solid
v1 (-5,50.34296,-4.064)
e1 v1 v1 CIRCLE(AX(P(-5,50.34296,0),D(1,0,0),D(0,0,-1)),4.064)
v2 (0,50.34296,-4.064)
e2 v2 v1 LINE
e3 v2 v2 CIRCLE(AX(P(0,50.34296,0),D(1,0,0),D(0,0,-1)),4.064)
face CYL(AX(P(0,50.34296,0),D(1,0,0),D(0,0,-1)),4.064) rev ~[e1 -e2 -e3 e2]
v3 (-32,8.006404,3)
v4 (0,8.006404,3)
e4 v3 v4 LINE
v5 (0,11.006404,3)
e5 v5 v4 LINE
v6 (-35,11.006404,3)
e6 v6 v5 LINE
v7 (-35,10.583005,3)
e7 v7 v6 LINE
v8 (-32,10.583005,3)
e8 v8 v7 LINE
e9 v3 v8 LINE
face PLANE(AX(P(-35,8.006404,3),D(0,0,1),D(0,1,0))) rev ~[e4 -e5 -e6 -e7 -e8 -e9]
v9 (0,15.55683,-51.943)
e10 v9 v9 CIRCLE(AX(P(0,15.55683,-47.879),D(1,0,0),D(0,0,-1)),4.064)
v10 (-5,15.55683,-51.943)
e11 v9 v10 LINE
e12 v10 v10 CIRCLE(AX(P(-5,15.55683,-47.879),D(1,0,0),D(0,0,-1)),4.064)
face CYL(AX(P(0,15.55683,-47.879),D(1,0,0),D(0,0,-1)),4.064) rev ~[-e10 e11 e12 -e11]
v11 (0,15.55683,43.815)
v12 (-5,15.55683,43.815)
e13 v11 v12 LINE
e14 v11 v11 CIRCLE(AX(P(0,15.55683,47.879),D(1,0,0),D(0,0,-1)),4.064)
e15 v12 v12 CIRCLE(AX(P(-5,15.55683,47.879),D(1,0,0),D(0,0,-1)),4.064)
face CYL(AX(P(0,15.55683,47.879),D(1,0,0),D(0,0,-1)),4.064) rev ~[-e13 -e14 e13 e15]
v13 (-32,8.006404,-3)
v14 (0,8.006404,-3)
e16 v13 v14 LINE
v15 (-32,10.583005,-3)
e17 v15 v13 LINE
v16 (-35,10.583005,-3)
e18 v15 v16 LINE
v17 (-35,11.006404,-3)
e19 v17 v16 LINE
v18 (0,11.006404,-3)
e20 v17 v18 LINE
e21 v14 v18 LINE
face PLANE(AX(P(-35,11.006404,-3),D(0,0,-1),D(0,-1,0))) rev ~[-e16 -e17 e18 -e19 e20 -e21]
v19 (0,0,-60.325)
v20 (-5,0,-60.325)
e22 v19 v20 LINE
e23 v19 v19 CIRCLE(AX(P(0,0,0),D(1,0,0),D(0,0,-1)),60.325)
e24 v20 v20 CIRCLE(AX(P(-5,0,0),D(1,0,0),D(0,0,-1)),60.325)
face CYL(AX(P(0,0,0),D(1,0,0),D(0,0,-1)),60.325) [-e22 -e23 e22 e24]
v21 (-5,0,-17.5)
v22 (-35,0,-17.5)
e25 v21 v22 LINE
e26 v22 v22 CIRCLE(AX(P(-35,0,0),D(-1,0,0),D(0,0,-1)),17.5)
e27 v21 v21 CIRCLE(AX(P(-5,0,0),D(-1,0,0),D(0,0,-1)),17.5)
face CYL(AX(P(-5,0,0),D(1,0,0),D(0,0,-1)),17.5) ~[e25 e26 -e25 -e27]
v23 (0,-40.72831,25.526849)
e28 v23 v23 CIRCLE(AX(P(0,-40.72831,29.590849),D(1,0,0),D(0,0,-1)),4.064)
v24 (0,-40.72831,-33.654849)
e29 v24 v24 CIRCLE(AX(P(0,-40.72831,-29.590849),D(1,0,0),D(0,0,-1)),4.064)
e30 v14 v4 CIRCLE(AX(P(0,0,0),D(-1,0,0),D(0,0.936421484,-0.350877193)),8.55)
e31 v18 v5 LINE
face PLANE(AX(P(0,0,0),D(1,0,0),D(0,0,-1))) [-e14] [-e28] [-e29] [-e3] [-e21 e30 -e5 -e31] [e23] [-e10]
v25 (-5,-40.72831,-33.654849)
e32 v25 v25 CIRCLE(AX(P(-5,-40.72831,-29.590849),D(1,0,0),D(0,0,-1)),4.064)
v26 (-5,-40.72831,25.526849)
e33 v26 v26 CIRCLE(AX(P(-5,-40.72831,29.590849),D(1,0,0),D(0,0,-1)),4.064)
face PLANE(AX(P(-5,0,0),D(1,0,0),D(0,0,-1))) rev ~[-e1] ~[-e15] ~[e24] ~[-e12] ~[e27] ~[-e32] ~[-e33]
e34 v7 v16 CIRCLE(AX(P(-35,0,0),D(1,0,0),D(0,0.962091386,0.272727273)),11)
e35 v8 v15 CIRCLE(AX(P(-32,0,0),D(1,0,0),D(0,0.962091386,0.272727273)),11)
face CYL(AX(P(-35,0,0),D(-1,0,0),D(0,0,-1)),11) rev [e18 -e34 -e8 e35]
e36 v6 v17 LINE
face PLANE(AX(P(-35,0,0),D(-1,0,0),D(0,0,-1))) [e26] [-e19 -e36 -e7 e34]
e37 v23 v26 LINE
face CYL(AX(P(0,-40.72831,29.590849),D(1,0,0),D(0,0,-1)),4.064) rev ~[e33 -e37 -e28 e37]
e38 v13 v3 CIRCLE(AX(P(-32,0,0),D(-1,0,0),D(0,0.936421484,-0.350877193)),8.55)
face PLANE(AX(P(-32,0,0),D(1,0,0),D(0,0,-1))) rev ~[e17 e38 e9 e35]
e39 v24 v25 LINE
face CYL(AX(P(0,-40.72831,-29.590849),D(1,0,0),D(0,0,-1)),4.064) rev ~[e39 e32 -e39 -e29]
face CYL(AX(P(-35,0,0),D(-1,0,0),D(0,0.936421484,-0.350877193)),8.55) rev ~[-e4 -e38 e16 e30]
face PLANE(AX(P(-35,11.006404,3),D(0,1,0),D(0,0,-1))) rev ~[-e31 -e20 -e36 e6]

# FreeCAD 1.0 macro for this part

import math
import FreeCAD as App
import Part
import Sketcher

V = App.Vector

doc = App.newDocument("Part")
body = doc.addObject("PartDesign::Body", "Body")

# Sketch on YZ plane
sketch1 = body.newObject("Sketcher::SketchObject", "Sketch")
sketch1.AttachmentSupport = (doc.getObject("YZ_Plane"), [""])
sketch1.MapMode = "FlatFace"
sketch1.addGeometry(Part.Circle(V(0, 0, 0), V(0, 0, 1), 60), False)
sketch1.addConstraint(Sketcher.Constraint("Coincident", 0, 3, -1, 1))
sketch1.addConstraint(Sketcher.Constraint("Diameter", 0, 120.65))
pad1 = body.newObject("PartDesign::Pad", "Pad")
pad1.Profile = sketch1
pad1.Length = 5
pad1.Reversed = True

# Sketch on YZ plane
sketch2 = body.newObject("Sketcher::SketchObject", "Sketch001")
sketch2.AttachmentSupport = (doc.getObject("YZ_Plane"), [""])
sketch2.MapMode = "FlatFace"
sketch2.addGeometry(Part.Circle(V(50.3, 0, 0), V(0, 0, 1), 4.1), False)
sketch2.addGeometry(Part.Circle(V(15.6, -47.9, 0), V(0, 0, 1), 4.1), False)
sketch2.addGeometry(Part.Circle(V(-40.7, -29.6, 0), V(0, 0, 1), 4.1), False)
sketch2.addGeometry(Part.Circle(V(-40.7, 29.6, 0), V(0, 0, 1), 4.1), False)
sketch2.addGeometry(Part.Circle(V(15.6, 47.9, 0), V(0, 0, 1), 4.1), False)
sketch2.addConstraint(Sketcher.Constraint("Equal", 0, 1))
sketch2.addConstraint(Sketcher.Constraint("Equal", 1, 2))
sketch2.addConstraint(Sketcher.Constraint("Equal", 2, 3))
sketch2.addConstraint(Sketcher.Constraint("Equal", 3, 4))
sketch2.addConstraint(Sketcher.Constraint("Symmetric", 2, 3, 3, 3, -1))
sketch2.addConstraint(Sketcher.Constraint("Symmetric", 1, 3, 4, 3, -1))
sketch2.addConstraint(Sketcher.Constraint("PointOnObject", 0, 3, -1))
sketch2.addConstraint(Sketcher.Constraint("Diameter", 0, 8.128))
sketch2.addConstraint(Sketcher.Constraint("DistanceY", 1, 3, -1, 1, 47.879))
sketch2.addConstraint(Sketcher.Constraint("DistanceY", 2, 3, 3, 3, 59.181699))
sketch2.addConstraint(Sketcher.Constraint("DistanceX", -1, 1, 0, 3, 50.34296))
sketch2.addConstraint(Sketcher.Constraint("DistanceX", -1, 1, 1, 3, 15.55683))
sketch2.addConstraint(Sketcher.Constraint("DistanceX", 2, 3, -1, 1, 40.72831))
pocket1 = body.newObject("PartDesign::Pocket", "Pocket")
pocket1.Profile = sketch2
pocket1.Type = "ThroughAll"

# Sketch on YZ plane
sketch3 = body.newObject("Sketcher::SketchObject", "Sketch002")
sketch3.AttachmentSupport = (doc.getObject("YZ_Plane"), [""])
sketch3.MapMode = "FlatFace"
sketch3.AttachmentOffset = App.Placement(V(0, 0, -5), App.Rotation())
sketch3.addGeometry(Part.Circle(V(0, 0, 0), V(0, 0, 1), 18), False)
sketch3.addConstraint(Sketcher.Constraint("Coincident", 0, 3, -1, 1))
sketch3.addConstraint(Sketcher.Constraint("Diameter", 0, 35.0))
pad2 = body.newObject("PartDesign::Pad", "Pad001")
pad2.Profile = sketch3
pad2.Length = 30
pad2.Reversed = True

# Sketch on YZ plane
sketch4 = body.newObject("Sketcher::SketchObject", "Sketch003")
sketch4.AttachmentSupport = (doc.getObject("YZ_Plane"), [""])
sketch4.MapMode = "FlatFace"
sketch4.AttachmentOffset = App.Placement(V(0, 0, -35), App.Rotation())
sketch4.addGeometry(Part.LineSegment(V(11, -3, 0), V(8, -3, 0)), False)
sketch4.addGeometry(Part.ArcOfCircle(Part.Circle(V(0, 0, 0), V(0, 0, 1), 8.6), math.radians(21), math.radians(339)), False)
sketch4.addGeometry(Part.LineSegment(V(8, 3, 0), V(11, 3, 0)), False)
sketch4.addGeometry(Part.LineSegment(V(11, 3, 0), V(11, -3, 0)), False)
sketch4.addConstraint(Sketcher.Constraint("Coincident", 0, 2, 1, 2))
sketch4.addConstraint(Sketcher.Constraint("Coincident", 1, 1, 2, 1))
sketch4.addConstraint(Sketcher.Constraint("Coincident", 2, 2, 3, 1))
sketch4.addConstraint(Sketcher.Constraint("Coincident", 3, 2, 0, 1))
sketch4.addConstraint(Sketcher.Constraint("Horizontal", 0))
sketch4.addConstraint(Sketcher.Constraint("Horizontal", 2))
sketch4.addConstraint(Sketcher.Constraint("Vertical", 3))
sketch4.addConstraint(Sketcher.Constraint("Coincident", 1, 3, -1, 1))
sketch4.addConstraint(Sketcher.Constraint("Vertical", 0, 2, 1, 1))
sketch4.addConstraint(Sketcher.Constraint("DistanceX", 0, 2, 0, 1, 3.0))
sketch4.addConstraint(Sketcher.Constraint("DistanceY", 3, 2, 3, 1, 6.0))
sketch4.addConstraint(Sketcher.Constraint("Radius", 1, 8.55))
pocket2 = body.newObject("PartDesign::Pocket", "Pocket001")
pocket2.Profile = sketch4
pocket2.Type = "ThroughAll"
pocket2.Reversed = True

# Sketch on YZ plane
sketch5 = body.newObject("Sketcher::SketchObject", "Sketch004")
sketch5.AttachmentSupport = (doc.getObject("YZ_Plane"), [""])
sketch5.MapMode = "FlatFace"
sketch5.AttachmentOffset = App.Placement(V(0, 0, -35), App.Rotation())
sketch5.addGeometry(Part.Circle(V(0, 0, 0), V(0, 0, 1), 11), False)
sketch5.addConstraint(Sketcher.Constraint("Coincident", 0, 3, -1, 1))
sketch5.addConstraint(Sketcher.Constraint("Diameter", 0, 22.0))
pocket3 = body.newObject("PartDesign::Pocket", "Pocket002")
pocket3.Profile = sketch5
pocket3.Length = 3
pocket3.Reversed = True

doc.recompute()
